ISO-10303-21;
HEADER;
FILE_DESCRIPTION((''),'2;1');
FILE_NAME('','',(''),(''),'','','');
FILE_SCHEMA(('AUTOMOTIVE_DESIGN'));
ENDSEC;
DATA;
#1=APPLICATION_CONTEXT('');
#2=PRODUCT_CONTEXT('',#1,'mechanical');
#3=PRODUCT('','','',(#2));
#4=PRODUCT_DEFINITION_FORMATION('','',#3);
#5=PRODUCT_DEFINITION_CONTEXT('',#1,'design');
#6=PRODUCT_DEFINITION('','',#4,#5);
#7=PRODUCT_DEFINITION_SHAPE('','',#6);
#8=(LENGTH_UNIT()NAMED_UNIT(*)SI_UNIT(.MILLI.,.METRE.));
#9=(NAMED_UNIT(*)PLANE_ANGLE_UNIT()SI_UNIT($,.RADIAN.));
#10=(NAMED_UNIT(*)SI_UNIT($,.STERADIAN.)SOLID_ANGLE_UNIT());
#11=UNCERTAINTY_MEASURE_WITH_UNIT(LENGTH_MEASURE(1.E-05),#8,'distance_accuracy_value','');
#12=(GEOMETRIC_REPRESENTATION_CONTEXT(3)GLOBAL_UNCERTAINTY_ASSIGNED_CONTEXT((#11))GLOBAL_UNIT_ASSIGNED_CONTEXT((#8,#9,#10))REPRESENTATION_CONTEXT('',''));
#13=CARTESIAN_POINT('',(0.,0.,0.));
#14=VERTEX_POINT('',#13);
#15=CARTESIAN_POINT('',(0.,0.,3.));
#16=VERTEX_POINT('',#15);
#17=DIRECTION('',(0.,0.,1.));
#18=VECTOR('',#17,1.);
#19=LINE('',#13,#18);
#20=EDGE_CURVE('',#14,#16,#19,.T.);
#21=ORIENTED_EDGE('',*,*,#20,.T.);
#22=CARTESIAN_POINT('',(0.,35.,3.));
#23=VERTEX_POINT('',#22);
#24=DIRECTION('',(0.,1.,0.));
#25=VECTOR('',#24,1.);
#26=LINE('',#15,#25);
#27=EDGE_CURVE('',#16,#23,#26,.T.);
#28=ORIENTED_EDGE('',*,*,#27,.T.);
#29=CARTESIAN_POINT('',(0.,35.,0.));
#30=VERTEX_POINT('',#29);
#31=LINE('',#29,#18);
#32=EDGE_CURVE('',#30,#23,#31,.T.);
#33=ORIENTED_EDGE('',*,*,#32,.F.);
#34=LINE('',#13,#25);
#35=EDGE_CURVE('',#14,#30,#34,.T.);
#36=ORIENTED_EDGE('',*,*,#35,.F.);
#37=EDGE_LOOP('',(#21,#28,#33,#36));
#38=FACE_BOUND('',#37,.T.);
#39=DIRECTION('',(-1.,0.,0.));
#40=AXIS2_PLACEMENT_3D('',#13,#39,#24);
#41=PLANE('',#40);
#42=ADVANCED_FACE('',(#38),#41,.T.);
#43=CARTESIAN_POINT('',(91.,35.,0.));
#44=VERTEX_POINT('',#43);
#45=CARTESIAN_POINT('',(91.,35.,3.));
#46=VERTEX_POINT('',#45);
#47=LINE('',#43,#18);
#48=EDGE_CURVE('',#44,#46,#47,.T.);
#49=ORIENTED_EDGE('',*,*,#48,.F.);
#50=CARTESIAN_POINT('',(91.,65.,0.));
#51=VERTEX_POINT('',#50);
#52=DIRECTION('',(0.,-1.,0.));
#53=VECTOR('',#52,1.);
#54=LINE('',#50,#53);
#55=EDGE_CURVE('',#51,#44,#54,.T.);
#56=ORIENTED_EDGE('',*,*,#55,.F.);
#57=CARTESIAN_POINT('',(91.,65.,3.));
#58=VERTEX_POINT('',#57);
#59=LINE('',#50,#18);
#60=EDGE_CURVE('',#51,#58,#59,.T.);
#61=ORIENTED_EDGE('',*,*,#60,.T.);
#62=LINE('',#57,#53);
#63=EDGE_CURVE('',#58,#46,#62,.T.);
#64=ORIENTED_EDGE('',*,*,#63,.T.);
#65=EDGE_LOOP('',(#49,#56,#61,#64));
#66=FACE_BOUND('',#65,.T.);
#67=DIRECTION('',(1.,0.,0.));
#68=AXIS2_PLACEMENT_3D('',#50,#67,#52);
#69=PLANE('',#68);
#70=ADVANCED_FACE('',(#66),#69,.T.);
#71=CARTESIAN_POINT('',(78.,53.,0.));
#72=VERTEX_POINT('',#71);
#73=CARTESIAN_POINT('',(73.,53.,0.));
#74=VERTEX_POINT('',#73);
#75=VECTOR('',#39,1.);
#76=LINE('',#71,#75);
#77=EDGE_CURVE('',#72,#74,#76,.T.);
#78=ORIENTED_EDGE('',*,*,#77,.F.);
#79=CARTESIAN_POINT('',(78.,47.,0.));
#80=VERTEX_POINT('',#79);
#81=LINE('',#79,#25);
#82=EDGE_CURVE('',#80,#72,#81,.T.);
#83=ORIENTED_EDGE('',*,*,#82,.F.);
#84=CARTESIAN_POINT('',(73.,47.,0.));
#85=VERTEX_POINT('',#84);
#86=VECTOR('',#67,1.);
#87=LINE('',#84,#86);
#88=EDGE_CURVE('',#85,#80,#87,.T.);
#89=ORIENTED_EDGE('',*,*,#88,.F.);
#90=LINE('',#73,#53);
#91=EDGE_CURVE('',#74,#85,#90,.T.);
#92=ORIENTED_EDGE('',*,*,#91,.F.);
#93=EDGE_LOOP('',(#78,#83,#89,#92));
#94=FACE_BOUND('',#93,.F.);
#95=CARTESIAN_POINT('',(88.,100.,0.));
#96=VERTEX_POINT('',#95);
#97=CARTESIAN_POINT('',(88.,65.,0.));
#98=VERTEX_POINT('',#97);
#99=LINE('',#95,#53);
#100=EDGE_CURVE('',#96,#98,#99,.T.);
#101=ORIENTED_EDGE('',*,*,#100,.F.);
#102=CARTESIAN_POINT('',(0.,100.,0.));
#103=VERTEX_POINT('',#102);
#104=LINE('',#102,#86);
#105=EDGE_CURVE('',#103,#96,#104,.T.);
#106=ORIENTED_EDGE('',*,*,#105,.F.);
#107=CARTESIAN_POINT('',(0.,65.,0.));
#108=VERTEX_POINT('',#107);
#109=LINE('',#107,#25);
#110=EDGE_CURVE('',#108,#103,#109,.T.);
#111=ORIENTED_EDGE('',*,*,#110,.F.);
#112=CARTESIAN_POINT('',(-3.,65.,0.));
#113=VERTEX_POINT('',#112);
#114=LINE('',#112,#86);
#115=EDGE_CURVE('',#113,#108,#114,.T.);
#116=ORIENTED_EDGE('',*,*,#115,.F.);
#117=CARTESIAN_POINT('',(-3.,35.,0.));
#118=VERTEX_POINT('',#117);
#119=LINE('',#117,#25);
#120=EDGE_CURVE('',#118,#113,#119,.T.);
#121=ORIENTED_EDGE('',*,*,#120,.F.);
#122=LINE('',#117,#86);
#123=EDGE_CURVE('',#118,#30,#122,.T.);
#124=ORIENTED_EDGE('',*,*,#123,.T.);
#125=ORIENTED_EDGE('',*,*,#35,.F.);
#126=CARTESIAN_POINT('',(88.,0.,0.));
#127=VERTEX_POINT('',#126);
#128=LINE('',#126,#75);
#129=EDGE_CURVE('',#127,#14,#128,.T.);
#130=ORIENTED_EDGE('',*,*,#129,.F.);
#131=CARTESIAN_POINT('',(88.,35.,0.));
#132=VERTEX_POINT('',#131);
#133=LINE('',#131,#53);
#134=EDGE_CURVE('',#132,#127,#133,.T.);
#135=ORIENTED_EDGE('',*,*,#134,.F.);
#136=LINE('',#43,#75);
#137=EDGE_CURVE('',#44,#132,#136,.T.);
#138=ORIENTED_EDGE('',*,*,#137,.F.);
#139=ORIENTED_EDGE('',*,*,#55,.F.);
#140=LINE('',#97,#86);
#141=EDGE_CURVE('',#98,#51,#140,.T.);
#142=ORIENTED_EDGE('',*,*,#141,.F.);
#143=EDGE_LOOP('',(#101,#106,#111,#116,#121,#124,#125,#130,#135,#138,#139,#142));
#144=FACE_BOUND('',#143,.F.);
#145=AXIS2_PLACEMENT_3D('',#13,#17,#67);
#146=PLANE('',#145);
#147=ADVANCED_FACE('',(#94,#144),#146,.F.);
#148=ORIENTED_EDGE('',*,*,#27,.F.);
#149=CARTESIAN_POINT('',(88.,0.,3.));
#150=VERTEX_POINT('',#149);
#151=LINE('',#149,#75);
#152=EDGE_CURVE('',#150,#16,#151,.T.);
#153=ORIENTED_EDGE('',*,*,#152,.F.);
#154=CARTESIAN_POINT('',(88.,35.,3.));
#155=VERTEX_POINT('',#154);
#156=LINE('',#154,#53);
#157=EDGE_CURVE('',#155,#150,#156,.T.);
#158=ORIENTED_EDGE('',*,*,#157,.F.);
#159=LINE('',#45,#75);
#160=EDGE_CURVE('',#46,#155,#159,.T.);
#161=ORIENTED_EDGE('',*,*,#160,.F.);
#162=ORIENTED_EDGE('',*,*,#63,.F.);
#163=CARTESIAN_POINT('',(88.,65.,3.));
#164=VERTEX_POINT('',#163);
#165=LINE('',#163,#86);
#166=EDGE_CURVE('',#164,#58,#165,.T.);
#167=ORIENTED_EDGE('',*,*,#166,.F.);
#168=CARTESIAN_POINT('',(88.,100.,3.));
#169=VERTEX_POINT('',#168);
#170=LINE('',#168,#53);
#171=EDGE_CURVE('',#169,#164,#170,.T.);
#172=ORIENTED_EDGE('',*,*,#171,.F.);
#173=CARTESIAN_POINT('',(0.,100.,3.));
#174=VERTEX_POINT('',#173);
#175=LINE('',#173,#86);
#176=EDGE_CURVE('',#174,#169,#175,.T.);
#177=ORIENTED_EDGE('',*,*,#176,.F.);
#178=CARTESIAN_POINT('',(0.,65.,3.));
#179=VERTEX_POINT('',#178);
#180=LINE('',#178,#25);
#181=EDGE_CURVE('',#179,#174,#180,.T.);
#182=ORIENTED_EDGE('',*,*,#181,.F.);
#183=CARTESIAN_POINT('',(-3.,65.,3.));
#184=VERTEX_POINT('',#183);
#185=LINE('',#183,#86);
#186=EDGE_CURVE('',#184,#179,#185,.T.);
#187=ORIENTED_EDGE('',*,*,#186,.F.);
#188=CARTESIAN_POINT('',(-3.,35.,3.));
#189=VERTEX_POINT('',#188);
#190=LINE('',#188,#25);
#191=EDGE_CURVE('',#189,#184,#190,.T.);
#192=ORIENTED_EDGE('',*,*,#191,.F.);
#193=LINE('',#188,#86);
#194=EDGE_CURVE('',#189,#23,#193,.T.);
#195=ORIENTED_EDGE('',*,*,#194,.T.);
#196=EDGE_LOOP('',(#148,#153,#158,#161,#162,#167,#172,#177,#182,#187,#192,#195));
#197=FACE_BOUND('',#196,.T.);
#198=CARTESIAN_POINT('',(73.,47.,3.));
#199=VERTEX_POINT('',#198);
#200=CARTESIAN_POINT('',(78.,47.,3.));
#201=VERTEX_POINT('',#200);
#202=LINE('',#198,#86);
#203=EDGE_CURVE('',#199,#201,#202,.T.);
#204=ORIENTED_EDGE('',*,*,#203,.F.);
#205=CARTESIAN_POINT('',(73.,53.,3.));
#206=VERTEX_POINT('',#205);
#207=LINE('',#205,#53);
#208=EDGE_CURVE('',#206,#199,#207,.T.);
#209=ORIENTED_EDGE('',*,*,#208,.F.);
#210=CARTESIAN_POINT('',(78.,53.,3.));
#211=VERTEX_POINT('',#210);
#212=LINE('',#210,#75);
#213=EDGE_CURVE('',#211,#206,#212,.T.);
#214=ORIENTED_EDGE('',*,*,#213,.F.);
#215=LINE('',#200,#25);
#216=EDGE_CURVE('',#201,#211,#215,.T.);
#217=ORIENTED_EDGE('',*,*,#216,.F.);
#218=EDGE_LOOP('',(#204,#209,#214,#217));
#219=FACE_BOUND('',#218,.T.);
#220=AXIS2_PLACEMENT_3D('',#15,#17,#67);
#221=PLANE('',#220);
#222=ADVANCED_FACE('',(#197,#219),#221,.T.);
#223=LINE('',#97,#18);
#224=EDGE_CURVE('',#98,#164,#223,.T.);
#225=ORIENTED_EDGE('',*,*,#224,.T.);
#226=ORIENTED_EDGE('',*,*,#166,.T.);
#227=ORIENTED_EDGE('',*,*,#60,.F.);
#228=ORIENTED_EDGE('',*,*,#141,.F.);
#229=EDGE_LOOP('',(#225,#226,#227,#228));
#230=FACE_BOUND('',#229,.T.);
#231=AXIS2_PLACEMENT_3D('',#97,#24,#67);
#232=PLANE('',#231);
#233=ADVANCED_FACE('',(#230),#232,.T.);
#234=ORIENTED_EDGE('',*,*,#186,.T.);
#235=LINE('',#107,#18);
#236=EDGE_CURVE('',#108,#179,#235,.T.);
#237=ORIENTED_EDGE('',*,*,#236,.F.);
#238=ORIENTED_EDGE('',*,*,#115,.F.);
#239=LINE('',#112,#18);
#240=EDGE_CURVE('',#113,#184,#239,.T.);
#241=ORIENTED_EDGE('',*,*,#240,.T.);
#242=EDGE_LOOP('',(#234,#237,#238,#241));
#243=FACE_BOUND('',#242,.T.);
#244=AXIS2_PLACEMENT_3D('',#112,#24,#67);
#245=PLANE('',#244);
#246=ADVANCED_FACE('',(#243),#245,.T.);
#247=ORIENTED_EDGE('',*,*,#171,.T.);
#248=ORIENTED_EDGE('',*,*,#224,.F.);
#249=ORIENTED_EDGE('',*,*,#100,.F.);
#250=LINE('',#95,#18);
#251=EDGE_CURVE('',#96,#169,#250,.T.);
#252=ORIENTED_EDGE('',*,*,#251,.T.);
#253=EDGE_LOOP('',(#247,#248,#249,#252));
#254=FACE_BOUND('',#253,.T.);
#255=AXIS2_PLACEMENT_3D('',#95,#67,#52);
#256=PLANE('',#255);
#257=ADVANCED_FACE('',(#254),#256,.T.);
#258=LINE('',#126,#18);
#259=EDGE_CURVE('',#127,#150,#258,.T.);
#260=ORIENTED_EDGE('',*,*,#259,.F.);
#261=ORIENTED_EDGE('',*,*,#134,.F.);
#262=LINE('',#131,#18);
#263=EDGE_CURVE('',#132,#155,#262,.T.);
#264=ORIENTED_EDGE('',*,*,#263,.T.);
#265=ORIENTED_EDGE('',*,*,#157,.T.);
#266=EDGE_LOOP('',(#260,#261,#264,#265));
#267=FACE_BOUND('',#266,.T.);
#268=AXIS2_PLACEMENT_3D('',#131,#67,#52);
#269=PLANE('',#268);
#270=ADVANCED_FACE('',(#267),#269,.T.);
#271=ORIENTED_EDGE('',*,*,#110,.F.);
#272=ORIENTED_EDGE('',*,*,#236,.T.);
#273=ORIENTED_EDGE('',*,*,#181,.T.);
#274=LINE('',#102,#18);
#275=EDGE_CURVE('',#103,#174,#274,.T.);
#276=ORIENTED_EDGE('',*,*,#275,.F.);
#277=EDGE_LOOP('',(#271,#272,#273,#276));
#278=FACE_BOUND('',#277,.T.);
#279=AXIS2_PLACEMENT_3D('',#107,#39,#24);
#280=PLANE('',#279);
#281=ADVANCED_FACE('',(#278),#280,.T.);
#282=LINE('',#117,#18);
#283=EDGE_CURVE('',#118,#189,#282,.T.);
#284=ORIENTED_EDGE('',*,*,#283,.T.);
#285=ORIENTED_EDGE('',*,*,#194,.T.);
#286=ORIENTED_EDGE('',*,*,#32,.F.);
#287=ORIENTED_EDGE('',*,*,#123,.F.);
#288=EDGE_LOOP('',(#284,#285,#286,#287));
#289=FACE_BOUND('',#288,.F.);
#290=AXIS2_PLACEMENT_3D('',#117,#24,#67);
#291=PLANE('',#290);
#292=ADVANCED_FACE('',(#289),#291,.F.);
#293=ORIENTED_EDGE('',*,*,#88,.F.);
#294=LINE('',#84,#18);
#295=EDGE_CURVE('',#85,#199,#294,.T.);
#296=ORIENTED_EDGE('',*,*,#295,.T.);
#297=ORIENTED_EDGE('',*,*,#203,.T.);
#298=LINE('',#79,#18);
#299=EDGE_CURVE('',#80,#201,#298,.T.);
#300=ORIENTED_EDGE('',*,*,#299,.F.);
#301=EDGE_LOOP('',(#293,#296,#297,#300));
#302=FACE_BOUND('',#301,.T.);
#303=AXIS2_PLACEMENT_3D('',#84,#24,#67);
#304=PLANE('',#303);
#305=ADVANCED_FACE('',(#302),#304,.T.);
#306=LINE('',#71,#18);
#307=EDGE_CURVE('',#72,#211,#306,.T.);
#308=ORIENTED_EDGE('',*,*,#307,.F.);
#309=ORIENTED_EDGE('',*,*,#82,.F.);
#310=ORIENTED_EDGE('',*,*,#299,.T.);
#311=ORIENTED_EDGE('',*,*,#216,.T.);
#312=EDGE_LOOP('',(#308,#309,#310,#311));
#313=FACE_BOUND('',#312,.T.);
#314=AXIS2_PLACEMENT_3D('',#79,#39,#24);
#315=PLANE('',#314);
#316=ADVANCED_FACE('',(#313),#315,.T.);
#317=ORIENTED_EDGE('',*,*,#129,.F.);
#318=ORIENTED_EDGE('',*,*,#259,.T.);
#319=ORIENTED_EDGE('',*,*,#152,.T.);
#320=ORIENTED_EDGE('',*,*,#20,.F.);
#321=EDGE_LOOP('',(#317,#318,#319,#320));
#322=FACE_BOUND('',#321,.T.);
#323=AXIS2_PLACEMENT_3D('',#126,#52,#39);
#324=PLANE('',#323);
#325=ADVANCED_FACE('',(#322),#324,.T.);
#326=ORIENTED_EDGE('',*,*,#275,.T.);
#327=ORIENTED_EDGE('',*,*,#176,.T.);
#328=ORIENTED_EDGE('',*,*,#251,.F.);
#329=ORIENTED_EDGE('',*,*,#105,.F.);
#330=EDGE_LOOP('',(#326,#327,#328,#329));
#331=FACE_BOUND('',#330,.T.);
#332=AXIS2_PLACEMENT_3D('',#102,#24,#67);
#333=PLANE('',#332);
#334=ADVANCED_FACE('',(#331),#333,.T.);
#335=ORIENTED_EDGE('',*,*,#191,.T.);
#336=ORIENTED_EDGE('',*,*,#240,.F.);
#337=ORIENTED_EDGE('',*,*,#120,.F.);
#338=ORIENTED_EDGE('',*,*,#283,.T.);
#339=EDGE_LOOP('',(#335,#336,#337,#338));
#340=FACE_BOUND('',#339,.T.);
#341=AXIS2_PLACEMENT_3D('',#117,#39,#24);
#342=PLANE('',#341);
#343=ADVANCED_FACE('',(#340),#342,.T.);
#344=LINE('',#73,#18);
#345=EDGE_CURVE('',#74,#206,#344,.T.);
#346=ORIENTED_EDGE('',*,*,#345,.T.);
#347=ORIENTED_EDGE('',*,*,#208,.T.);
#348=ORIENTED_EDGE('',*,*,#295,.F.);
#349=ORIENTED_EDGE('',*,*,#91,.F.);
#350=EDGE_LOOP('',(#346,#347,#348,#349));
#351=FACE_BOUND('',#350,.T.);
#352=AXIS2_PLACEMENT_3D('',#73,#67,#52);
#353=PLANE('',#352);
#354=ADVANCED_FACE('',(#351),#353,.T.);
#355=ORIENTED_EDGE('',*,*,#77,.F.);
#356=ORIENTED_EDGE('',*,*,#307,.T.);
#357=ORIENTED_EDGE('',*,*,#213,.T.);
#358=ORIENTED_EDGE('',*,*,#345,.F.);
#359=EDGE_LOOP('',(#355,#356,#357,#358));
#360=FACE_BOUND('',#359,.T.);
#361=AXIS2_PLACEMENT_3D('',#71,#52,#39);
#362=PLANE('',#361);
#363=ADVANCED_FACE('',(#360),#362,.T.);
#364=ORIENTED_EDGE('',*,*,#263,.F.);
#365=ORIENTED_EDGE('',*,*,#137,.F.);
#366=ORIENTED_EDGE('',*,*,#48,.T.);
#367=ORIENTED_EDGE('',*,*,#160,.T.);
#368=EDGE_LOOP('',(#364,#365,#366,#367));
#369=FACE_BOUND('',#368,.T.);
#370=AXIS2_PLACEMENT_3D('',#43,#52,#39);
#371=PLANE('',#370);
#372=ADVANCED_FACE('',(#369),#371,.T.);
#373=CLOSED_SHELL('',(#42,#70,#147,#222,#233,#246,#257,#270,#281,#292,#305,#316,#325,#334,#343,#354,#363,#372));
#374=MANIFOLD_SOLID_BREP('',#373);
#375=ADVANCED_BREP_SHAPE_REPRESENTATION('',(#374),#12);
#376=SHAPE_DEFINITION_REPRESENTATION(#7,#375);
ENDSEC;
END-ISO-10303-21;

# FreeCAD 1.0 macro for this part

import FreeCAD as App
import Part
import Sketcher

V = App.Vector

doc = App.newDocument("Part")
params = doc.addObject("Spreadsheet::Sheet", "Params")
for row, (alias, value) in enumerate([
    ("sketch1_width", "3 mm"),
    ("sketch1_width2", "88 mm"),
    ("sketch1_width3", "5 mm"),
    ("sketch1_height", "30 mm"),
    ("sketch1_height2", "35 mm"),
    ("pad1_length", "3 mm"),
], start=1):
    params.set(f"A{row}", alias)
    params.set(f"B{row}", "=" + value)
    params.setAlias(f"B{row}", alias)

body = doc.addObject("PartDesign::Body", "Body")

# Sketch on XY plane
sketch1 = body.newObject("Sketcher::SketchObject", "Sketch")
sketch1.AttachmentSupport = (doc.getObject("XY_Plane"), [""])
sketch1.MapMode = "FlatFace"
sketch1.addGeometry([
    Part.LineSegment(V(-3, 65, 0), V(-3, 35, 0)),  # 0
    Part.LineSegment(V(-3, 35, 0), V(0, 35, 0)),  # 1
    Part.LineSegment(V(0, 35, 0), V(0, 0, 0)),  # 2
    Part.LineSegment(V(0, 0, 0), V(88, 0, 0)),  # 3
    Part.LineSegment(V(88, 0, 0), V(88, 35, 0)),  # 4
    Part.LineSegment(V(88, 35, 0), V(91, 35, 0)),  # 5
    Part.LineSegment(V(91, 35, 0), V(91, 65, 0)),  # 6
    Part.LineSegment(V(91, 65, 0), V(88, 65, 0)),  # 7
    Part.LineSegment(V(88, 65, 0), V(88, 100, 0)),  # 8
    Part.LineSegment(V(88, 100, 0), V(0, 100, 0)),  # 9
    Part.LineSegment(V(0, 100, 0), V(0, 65, 0)),  # 10
    Part.LineSegment(V(0, 65, 0), V(-3, 65, 0)),  # 11
    Part.LineSegment(V(73, 53, 0), V(78, 53, 0)),  # 12
    Part.LineSegment(V(78, 53, 0), V(78, 47, 0)),  # 13
    Part.LineSegment(V(78, 47, 0), V(73, 47, 0)),  # 14
    Part.LineSegment(V(73, 47, 0), V(73, 53, 0)),  # 15
], False)
sketch1.addConstraint([
    Sketcher.Constraint("Coincident", 0, 2, 1, 1),
    Sketcher.Constraint("Coincident", 1, 2, 2, 1),
    Sketcher.Constraint("Coincident", 2, 2, 3, 1),
    Sketcher.Constraint("Coincident", 3, 2, 4, 1),
    Sketcher.Constraint("Coincident", 4, 2, 5, 1),
    Sketcher.Constraint("Coincident", 5, 2, 6, 1),
    Sketcher.Constraint("Coincident", 6, 2, 7, 1),
    Sketcher.Constraint("Coincident", 7, 2, 8, 1),
    Sketcher.Constraint("Coincident", 8, 2, 9, 1),
    Sketcher.Constraint("Coincident", 9, 2, 10, 1),
    Sketcher.Constraint("Coincident", 10, 2, 11, 1),
    Sketcher.Constraint("Coincident", 11, 2, 0, 1),
    Sketcher.Constraint("Coincident", 12, 2, 13, 1),
    Sketcher.Constraint("Coincident", 13, 2, 14, 1),
    Sketcher.Constraint("Coincident", 14, 2, 15, 1),
    Sketcher.Constraint("Coincident", 15, 2, 12, 1),
    Sketcher.Constraint("Vertical", 0),
    Sketcher.Constraint("Horizontal", 1),
    Sketcher.Constraint("Vertical", 2),
    Sketcher.Constraint("Horizontal", 3),
    Sketcher.Constraint("Vertical", 4),
    Sketcher.Constraint("Horizontal", 5),
    Sketcher.Constraint("Vertical", 6),
    Sketcher.Constraint("Horizontal", 7),
    Sketcher.Constraint("Vertical", 8),
    Sketcher.Constraint("Horizontal", 9),
    Sketcher.Constraint("Vertical", 10),
    Sketcher.Constraint("Horizontal", 11),
    Sketcher.Constraint("Horizontal", 12),
    Sketcher.Constraint("Vertical", 13),
    Sketcher.Constraint("Horizontal", 14),
    Sketcher.Constraint("Vertical", 15),
    Sketcher.Constraint("Coincident", 2, 2, -1, 1),
    Sketcher.Constraint("PointOnObject", 9, 2, -2),
    Sketcher.Constraint("Horizontal", 1, 2, 4, 2),
    Sketcher.Constraint("Horizontal", 7, 2, 10, 2),
    Sketcher.Constraint("Vertical", 4, 2, 7, 2),
    Sketcher.Constraint("Equal", 1, 5),
    Sketcher.Constraint("Equal", 4, 8),
    Sketcher.Constraint("DistanceX", 1, 1, 1, 2, 3.0),
    Sketcher.Constraint("DistanceX", 3, 1, 3, 2, 88.0),
    Sketcher.Constraint("DistanceX", 12, 1, 12, 2, 5.0),
    Sketcher.Constraint("DistanceY", 0, 2, 0, 1, 30.0),
    Sketcher.Constraint("DistanceY", 2, 2, 2, 1, 35.0),
    Sketcher.Constraint("DistanceY", 13, 2, 13, 1, 6.0),
    Sketcher.Constraint("DistanceX", 12, 2, 7, 2, 10.0),
    Sketcher.Constraint("DistanceY", -1, 1, 12, 2, 53.0),
])
sketch1.setExpression("Constraints[39]", "Params.sketch1_width")
sketch1.setExpression("Constraints[40]", "Params.sketch1_width2")
sketch1.setExpression("Constraints[41]", "Params.sketch1_width3")
sketch1.setExpression("Constraints[42]", "Params.sketch1_height")
sketch1.setExpression("Constraints[43]", "Params.sketch1_height2")
pad1 = body.newObject("PartDesign::Pad", "Pad")
pad1.Profile = sketch1
pad1.setExpression("Length", "Params.pad1_length")

doc.recompute()
